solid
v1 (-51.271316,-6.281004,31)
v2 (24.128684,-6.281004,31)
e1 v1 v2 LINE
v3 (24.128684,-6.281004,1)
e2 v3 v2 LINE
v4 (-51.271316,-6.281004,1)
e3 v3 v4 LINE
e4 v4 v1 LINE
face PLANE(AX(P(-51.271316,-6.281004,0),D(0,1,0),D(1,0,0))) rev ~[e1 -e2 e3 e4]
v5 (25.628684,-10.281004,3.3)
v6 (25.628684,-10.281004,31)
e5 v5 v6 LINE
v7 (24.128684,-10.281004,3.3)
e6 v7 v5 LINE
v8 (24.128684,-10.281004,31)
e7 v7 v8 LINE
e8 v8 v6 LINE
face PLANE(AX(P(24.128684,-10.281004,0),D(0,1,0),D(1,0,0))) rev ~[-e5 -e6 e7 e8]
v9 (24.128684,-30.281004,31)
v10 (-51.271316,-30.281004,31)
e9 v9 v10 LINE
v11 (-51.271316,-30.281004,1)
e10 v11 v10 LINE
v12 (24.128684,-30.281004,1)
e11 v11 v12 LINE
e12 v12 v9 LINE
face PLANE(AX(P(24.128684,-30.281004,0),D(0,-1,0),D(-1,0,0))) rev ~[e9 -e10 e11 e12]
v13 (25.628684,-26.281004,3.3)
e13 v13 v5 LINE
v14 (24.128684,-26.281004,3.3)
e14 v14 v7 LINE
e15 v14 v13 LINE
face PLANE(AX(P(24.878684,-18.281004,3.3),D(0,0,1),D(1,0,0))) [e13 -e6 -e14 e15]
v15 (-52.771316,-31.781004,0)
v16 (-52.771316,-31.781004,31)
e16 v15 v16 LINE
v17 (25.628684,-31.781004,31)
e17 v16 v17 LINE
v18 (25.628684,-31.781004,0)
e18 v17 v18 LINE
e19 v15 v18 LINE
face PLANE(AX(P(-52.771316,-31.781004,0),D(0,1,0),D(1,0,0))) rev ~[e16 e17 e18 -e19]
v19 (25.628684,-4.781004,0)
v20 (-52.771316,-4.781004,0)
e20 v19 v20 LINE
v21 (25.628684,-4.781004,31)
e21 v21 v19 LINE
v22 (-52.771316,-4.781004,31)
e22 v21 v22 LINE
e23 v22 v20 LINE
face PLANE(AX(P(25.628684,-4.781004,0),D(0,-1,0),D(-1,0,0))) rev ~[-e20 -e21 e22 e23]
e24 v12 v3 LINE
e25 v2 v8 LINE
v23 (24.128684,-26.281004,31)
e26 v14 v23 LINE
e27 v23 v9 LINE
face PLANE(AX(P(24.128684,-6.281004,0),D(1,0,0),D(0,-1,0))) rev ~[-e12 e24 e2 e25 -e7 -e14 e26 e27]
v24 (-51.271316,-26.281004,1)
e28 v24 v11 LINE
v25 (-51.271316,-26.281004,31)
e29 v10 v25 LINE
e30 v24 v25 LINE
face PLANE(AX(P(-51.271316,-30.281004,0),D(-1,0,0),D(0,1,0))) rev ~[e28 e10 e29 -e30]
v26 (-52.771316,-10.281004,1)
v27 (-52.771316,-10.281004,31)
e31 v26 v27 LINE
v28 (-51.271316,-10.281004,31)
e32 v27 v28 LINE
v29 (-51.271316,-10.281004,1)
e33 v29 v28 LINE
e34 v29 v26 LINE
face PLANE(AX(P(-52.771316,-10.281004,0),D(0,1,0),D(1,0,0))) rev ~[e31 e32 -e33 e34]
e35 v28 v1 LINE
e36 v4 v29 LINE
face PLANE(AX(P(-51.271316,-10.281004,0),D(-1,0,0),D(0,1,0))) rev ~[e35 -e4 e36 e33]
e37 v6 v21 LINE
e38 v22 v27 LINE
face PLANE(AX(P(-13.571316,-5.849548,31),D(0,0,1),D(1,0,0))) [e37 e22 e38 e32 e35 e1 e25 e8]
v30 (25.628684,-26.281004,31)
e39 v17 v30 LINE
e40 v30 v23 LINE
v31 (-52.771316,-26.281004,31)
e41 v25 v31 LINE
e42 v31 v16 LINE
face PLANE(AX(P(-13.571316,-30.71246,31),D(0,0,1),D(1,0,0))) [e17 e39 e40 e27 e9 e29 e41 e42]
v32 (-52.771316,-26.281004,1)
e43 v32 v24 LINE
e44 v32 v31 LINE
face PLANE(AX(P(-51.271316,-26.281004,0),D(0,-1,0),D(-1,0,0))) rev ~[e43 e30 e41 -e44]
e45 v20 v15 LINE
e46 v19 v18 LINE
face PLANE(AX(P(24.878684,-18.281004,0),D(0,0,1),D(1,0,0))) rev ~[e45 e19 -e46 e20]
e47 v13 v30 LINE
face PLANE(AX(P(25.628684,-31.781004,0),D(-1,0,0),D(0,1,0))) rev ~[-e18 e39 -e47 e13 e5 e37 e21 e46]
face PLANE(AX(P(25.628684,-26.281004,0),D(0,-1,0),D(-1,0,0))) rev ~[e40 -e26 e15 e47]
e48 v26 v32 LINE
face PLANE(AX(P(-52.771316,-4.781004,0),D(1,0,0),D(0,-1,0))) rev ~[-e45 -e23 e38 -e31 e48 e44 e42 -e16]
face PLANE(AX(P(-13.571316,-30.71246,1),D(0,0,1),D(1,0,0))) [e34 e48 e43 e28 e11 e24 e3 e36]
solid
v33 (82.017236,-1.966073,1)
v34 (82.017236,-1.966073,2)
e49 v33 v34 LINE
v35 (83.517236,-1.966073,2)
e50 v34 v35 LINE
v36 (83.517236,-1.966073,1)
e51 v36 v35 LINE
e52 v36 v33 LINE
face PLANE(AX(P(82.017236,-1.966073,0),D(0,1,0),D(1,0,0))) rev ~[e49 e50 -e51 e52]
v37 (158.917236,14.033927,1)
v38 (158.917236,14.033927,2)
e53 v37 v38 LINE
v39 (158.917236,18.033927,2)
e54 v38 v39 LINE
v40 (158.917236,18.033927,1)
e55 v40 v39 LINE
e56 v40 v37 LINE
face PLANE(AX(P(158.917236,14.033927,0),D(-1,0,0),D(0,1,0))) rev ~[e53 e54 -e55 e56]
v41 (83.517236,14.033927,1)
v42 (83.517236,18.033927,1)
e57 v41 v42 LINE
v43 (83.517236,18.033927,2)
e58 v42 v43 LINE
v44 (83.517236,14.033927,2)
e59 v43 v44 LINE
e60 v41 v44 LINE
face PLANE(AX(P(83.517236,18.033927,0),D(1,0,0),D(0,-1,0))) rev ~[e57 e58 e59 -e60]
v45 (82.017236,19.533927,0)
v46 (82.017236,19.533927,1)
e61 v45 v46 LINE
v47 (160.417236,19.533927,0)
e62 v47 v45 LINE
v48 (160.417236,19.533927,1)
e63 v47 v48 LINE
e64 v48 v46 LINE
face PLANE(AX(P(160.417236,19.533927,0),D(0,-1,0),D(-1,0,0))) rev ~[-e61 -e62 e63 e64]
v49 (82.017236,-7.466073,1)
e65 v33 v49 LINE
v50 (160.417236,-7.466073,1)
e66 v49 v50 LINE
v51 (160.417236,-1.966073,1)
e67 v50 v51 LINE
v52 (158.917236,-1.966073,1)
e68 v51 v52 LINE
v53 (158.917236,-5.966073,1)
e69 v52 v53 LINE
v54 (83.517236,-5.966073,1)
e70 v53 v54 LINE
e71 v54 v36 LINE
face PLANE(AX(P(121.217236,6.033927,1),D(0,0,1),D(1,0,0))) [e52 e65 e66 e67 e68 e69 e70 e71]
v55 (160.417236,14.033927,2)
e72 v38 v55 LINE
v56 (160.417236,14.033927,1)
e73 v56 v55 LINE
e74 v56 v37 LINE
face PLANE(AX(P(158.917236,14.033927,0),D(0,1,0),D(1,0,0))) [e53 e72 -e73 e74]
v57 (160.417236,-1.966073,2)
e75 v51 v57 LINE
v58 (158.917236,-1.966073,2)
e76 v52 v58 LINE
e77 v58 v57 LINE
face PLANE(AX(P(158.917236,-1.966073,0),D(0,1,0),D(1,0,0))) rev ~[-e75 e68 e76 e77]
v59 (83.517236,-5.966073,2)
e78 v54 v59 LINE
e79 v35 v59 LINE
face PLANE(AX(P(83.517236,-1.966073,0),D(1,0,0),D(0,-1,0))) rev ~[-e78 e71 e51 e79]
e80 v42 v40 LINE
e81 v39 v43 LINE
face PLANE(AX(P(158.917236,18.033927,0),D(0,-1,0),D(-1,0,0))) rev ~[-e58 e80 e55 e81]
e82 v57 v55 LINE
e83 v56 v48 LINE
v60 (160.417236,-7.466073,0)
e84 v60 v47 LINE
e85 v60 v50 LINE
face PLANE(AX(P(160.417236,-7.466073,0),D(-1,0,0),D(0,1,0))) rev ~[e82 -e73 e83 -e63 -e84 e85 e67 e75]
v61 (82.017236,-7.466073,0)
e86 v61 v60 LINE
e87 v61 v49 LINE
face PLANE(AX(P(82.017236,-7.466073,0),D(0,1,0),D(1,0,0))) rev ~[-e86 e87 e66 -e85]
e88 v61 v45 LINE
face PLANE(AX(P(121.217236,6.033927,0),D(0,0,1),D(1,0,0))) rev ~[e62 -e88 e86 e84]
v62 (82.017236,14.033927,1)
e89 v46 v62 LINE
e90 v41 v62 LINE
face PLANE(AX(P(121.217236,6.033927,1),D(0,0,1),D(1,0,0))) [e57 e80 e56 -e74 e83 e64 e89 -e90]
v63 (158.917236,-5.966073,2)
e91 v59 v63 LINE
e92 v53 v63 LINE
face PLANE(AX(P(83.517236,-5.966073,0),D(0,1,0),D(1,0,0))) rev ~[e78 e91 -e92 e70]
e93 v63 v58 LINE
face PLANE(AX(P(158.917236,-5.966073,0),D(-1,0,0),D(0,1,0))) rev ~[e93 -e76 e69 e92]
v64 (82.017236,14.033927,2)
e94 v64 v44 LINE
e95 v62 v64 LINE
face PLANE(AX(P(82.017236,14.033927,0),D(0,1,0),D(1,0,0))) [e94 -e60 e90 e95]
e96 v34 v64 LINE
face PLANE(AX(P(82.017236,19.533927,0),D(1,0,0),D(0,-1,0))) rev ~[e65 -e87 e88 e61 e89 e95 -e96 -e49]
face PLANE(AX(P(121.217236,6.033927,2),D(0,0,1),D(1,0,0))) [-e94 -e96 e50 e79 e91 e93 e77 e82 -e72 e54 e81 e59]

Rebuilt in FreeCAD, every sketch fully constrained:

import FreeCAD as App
import Part
import Sketcher

V = App.Vector
Q = App.Units.Quantity


def add_polygon(sketch, points):
    """Adds a closed chain of lines whose ends are joined by coincident constraints."""
    first, n = sketch.GeometryCount, len(points)
    for a, b in zip(points, points[1:] + points[:1]):
        sketch.addGeometry(Part.LineSegment(App.Vector(*a, 0), App.Vector(*b, 0)), False)
    for i in range(n):
        sketch.addConstraint(Sketcher.Constraint("Coincident", first + i, 2, first + (i + 1) % n, 1))

doc = App.newDocument("Part")
body = doc.addObject("PartDesign::Body", "Body")

sketch1 = body.newObject("Sketcher::SketchObject", "Sketch")
sketch1.AttachmentSupport = (doc.getObject("XY_Plane"), [""])
sketch1.MapMode = "FlatFace"
add_polygon(sketch1, [(-53, -32), (26, -32), (26, -5), (-53, -5)])
sketch1.addConstraint(Sketcher.Constraint("Horizontal", 0))
sketch1.addConstraint(Sketcher.Constraint("Vertical", 1))
sketch1.addConstraint(Sketcher.Constraint("Horizontal", 2))
sketch1.addConstraint(Sketcher.Constraint("Vertical", 3))
sketch1.addConstraint(Sketcher.Constraint("DistanceY", 1, 1, 1, 2, Q("27 mm")))
sketch1.addConstraint(Sketcher.Constraint("DistanceX", 0, 1, 0, 2, Q("78.4 mm")))
sketch1.addConstraint(Sketcher.Constraint("DistanceX", -1, 1, 0, 2, Q("25.628684 mm")))
sketch1.addConstraint(Sketcher.Constraint("DistanceY", 0, 2, -1, 1, Q("31.781004 mm")))
pad1 = body.newObject("PartDesign::Pad", "Pad")
pad1.Profile = sketch1
pad1.Length = 1

sketch2 = body.newObject("Sketcher::SketchObject", "Sketch001")
sketch2.AttachmentSupport = (doc.getObject("XY_Plane"), [""])
sketch2.MapMode = "FlatFace"
add_polygon(sketch2, [(-51.3, -10.3), (-51.3, -6.3), (24.1, -6.3), (24.1, -10.3), (25.6, -10.3), (25.6, -4.8), (-52.8, -4.8), (-52.8, -10.3)])
add_polygon(sketch2, [(-51.3, -30.3), (-51.3, -26.3), (-52.8, -26.3), (-52.8, -31.8), (25.6, -31.8), (25.6, -26.3), (24.1, -26.3), (24.1, -30.3)])
sketch2.addConstraint(Sketcher.Constraint("Vertical", 0))
sketch2.addConstraint(Sketcher.Constraint("Horizontal", 1))
sketch2.addConstraint(Sketcher.Constraint("Vertical", 2))
sketch2.addConstraint(Sketcher.Constraint("Horizontal", 3))
sketch2.addConstraint(Sketcher.Constraint("Vertical", 4))
sketch2.addConstraint(Sketcher.Constraint("Horizontal", 5))
sketch2.addConstraint(Sketcher.Constraint("Vertical", 6))
sketch2.addConstraint(Sketcher.Constraint("Horizontal", 7))
sketch2.addConstraint(Sketcher.Constraint("Vertical", 8))
sketch2.addConstraint(Sketcher.Constraint("Horizontal", 9))
sketch2.addConstraint(Sketcher.Constraint("Vertical", 10))
sketch2.addConstraint(Sketcher.Constraint("Horizontal", 11))
sketch2.addConstraint(Sketcher.Constraint("Vertical", 12))
sketch2.addConstraint(Sketcher.Constraint("Horizontal", 13))
sketch2.addConstraint(Sketcher.Constraint("Vertical", 14))
sketch2.addConstraint(Sketcher.Constraint("Horizontal", 15))
sketch2.addConstraint(Sketcher.Constraint("Horizontal", 3, 2, 6, 2))
sketch2.addConstraint(Sketcher.Constraint("Horizontal", 9, 2, 12, 2))
sketch2.addConstraint(Sketcher.Constraint("Vertical", 7, 2, 8, 2))
sketch2.addConstraint(Sketcher.Constraint("Vertical", 6, 2, 9, 2))
sketch2.addConstraint(Sketcher.Constraint("Vertical", 4, 2, 11, 2))
sketch2.addConstraint(Sketcher.Constraint("Vertical", 2, 2, 13, 2))
sketch2.addConstraint(Sketcher.Constraint("Equal", 3, 7))
sketch2.addConstraint(Sketcher.Constraint("Equal", 2, 8))
sketch2.addConstraint(Sketcher.Constraint("Equal", 6, 10))
sketch2.addConstraint(Sketcher.Constraint("DistanceY", 0, 1, 0, 2, Q("4 mm")))
sketch2.addConstraint(Sketcher.Constraint("DistanceX", 1, 1, 1, 2, Q("75.4 mm")))
sketch2.addConstraint(Sketcher.Constraint("DistanceX", 3, 1, 3, 2, Q("1.5 mm")))
sketch2.addConstraint(Sketcher.Constraint("DistanceY", 4, 1, 4, 2, Q("5.5 mm")))
sketch2.addConstraint(Sketcher.Constraint("DistanceY", 8, 2, 7, 2, Q("16 mm")))
sketch2.addConstraint(Sketcher.Constraint("DistanceX", 0, 2, -1, 1, Q("51.271316 mm")))
sketch2.addConstraint(Sketcher.Constraint("DistanceY", 0, 2, -1, 1, Q("6.281004 mm")))
pad2 = body.newObject("PartDesign::Pad", "Pad001")
pad2.Profile = sketch2
pad2.Length = 31

sketch3 = body.newObject("Sketcher::SketchObject", "Sketch002")
sketch3.AttachmentSupport = (doc.getObject("XY_Plane"), [""])
sketch3.MapMode = "FlatFace"
add_polygon(sketch3, [(24.1, -10.3), (24.1, -26.3), (25.6, -26.3), (25.6, -10.3)])
sketch3.addConstraint(Sketcher.Constraint("Vertical", 0))
sketch3.addConstraint(Sketcher.Constraint("Horizontal", 1))
sketch3.addConstraint(Sketcher.Constraint("Vertical", 2))
sketch3.addConstraint(Sketcher.Constraint("Horizontal", 3))
sketch3.addConstraint(Sketcher.Constraint("DistanceY", 0, 2, 0, 1, Q("16 mm")))
sketch3.addConstraint(Sketcher.Constraint("DistanceX", 1, 1, 1, 2, Q("1.5 mm")))
sketch3.addConstraint(Sketcher.Constraint("DistanceX", -1, 1, 0, 2, Q("24.128684 mm")))
sketch3.addConstraint(Sketcher.Constraint("DistanceY", 0, 2, -1, 1, Q("26.281004 mm")))
pad3 = body.newObject("PartDesign::Pad", "Pad002")
pad3.Profile = sketch3
pad3.Length = 3.3
body2 = doc.addObject("PartDesign::Body", "Body001")

sketch4 = body2.newObject("Sketcher::SketchObject", "Sketch003")
sketch4.AttachmentSupport = (doc.getObject("XY_Plane001"), [""])
sketch4.MapMode = "FlatFace"
add_polygon(sketch4, [(160, 20), (82, 20), (82, -7), (160, -7)])
sketch4.addConstraint(Sketcher.Constraint("Horizontal", 0))
sketch4.addConstraint(Sketcher.Constraint("Vertical", 1))
sketch4.addConstraint(Sketcher.Constraint("Horizontal", 2))
sketch4.addConstraint(Sketcher.Constraint("Vertical", 3))
sketch4.addConstraint(Sketcher.Constraint("DistanceY", 1, 2, 1, 1, Q("27 mm")))
sketch4.addConstraint(Sketcher.Constraint("DistanceX", 0, 2, 0, 1, Q("78.4 mm")))
sketch4.addConstraint(Sketcher.Constraint("DistanceX", -1, 1, 0, 2, Q("82.017236 mm")))
sketch4.addConstraint(Sketcher.Constraint("DistanceY", -1, 1, 0, 2, Q("19.533927 mm")))
pad4 = body2.newObject("PartDesign::Pad", "Pad003")
pad4.Profile = sketch4
pad4.Length = 1

sketch5 = body2.newObject("Sketcher::SketchObject", "Sketch004")
sketch5.AttachmentSupport = (doc.getObject("XY_Plane001"), [""])
sketch5.MapMode = "FlatFace"
add_polygon(sketch5, [(158.9, 18), (83.5, 18), (83.5, 14), (82, 14), (82, -2), (83.5, -2), (83.5, -6), (158.9, -6), (158.9, -2), (160.4, -2), (160.4, 14), (158.9, 14)])
sketch5.addConstraint(Sketcher.Constraint("Horizontal", 0))
sketch5.addConstraint(Sketcher.Constraint("Vertical", 1))
sketch5.addConstraint(Sketcher.Constraint("Horizontal", 2))
sketch5.addConstraint(Sketcher.Constraint("Vertical", 3))
sketch5.addConstraint(Sketcher.Constraint("Horizontal", 4))
sketch5.addConstraint(Sketcher.Constraint("Vertical", 5))
sketch5.addConstraint(Sketcher.Constraint("Horizontal", 6))
sketch5.addConstraint(Sketcher.Constraint("Vertical", 7))
sketch5.addConstraint(Sketcher.Constraint("Horizontal", 8))
sketch5.addConstraint(Sketcher.Constraint("Vertical", 9))
sketch5.addConstraint(Sketcher.Constraint("Horizontal", 10))
sketch5.addConstraint(Sketcher.Constraint("Vertical", 11))
sketch5.addConstraint(Sketcher.Constraint("Horizontal", 4, 2, 7, 2))
sketch5.addConstraint(Sketcher.Constraint("Horizontal", 2, 2, 9, 2))
sketch5.addConstraint(Sketcher.Constraint("Vertical", 1, 2, 4, 2))
sketch5.addConstraint(Sketcher.Constraint("Vertical", 7, 2, 10, 2))
sketch5.addConstraint(Sketcher.Constraint("Equal", 4, 8))
sketch5.addConstraint(Sketcher.Constraint("Equal", 1, 5))
sketch5.addConstraint(Sketcher.Constraint("DistanceY", 1, 2, 1, 1, Q("4 mm")))
sketch5.addConstraint(Sketcher.Constraint("DistanceY", 3, 2, 3, 1, Q("16 mm")))
sketch5.addConstraint(Sketcher.Constraint("DistanceX", 0, 2, 0, 1, Q("75.4 mm")))
sketch5.addConstraint(Sketcher.Constraint("DistanceX", 2, 2, 2, 1, Q("1.5 mm")))
sketch5.addConstraint(Sketcher.Constraint("DistanceX", -1, 1, 0, 2, Q("83.517236 mm")))
sketch5.addConstraint(Sketcher.Constraint("DistanceY", -1, 1, 0, 2, Q("18.033927 mm")))
pad5 = body2.newObject("PartDesign::Pad", "Pad004")
pad5.Profile = sketch5
pad5.Length = 2

doc.recompute()
